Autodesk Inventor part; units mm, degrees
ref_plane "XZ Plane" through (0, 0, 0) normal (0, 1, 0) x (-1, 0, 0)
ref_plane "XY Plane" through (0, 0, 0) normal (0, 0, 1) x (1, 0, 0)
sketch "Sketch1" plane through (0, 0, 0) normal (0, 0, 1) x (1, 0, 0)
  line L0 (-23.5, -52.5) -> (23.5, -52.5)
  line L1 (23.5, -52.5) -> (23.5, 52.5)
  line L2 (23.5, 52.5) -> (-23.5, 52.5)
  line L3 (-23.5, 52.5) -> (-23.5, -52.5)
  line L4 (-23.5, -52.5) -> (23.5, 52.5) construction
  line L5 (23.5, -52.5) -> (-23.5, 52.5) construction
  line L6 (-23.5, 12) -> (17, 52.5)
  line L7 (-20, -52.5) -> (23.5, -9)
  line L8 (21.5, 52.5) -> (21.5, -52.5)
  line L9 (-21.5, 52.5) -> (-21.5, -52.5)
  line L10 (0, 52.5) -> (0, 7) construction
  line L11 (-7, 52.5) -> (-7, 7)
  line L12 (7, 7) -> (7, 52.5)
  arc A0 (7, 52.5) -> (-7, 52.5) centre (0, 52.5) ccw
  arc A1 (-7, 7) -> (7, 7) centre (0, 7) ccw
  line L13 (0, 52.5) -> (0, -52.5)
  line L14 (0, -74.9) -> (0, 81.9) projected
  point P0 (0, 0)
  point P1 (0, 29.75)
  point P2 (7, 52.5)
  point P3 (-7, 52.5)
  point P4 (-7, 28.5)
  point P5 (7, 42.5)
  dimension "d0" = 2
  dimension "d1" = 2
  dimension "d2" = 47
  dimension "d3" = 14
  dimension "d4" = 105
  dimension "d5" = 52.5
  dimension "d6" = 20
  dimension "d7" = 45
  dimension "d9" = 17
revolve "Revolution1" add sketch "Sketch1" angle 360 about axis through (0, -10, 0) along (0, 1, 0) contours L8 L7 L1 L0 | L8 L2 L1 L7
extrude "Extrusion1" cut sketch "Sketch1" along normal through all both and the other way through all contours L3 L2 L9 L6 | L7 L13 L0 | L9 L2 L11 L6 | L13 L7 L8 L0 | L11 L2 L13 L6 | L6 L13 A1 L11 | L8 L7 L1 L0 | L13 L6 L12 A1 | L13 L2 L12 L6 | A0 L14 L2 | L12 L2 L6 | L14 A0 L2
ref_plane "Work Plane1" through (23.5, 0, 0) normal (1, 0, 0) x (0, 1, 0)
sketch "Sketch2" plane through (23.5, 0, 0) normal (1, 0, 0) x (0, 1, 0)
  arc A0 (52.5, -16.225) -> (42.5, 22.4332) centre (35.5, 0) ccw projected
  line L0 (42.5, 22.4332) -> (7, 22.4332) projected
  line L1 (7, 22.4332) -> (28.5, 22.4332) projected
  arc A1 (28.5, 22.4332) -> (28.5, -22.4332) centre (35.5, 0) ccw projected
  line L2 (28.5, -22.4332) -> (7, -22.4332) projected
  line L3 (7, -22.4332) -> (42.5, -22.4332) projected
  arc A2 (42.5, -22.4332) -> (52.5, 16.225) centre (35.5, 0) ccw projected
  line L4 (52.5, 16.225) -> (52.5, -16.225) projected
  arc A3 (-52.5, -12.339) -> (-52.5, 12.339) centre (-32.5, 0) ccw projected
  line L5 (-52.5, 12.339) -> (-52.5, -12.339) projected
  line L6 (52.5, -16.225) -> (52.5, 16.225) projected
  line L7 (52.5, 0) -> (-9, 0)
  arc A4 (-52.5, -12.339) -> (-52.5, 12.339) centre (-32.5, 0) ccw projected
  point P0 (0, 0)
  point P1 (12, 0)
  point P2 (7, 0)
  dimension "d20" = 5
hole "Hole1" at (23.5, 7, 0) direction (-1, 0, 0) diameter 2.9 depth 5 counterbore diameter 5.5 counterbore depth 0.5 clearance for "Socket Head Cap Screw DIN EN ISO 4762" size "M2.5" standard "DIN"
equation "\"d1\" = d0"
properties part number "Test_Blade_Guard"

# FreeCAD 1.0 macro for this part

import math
import FreeCAD as App
import Part
import Sketcher
from FreeCAD import Vector
Q = App.Units.Quantity

doc = App.newDocument("Part")
body = doc.addObject("PartDesign::Body", "Body")

# Sketch on XY plane
sketch1 = body.newObject("Sketcher::SketchObject", "Sketch")
sketch1.AttachmentSupport = (doc.getObject("XY_Plane"), [""])
sketch1.MapMode = "FlatFace"
sketch1.addGeometry(Part.LineSegment(Vector(21.5, -52.5, 0), Vector(23.5, -52.5, 0)), False)
sketch1.addGeometry(Part.LineSegment(Vector(23.5, -52.5, 0), Vector(23.5, 52.5, 0)), False)
sketch1.addGeometry(Part.LineSegment(Vector(23.5, 52.5, 0), Vector(21.5, 52.5, 0)), False)
sketch1.addGeometry(Part.LineSegment(Vector(21.5, 52.5, 0), Vector(21.5, -52.5, 0)), False)
sketch1.addConstraint(Sketcher.Constraint("Coincident", 0, 2, 1, 1))
sketch1.addConstraint(Sketcher.Constraint("Coincident", 1, 2, 2, 1))
sketch1.addConstraint(Sketcher.Constraint("Coincident", 2, 2, 3, 1))
sketch1.addConstraint(Sketcher.Constraint("Coincident", 3, 2, 0, 1))
sketch1.addConstraint(Sketcher.Constraint("Horizontal", 0))
sketch1.addConstraint(Sketcher.Constraint("Vertical", 1))
sketch1.addConstraint(Sketcher.Constraint("Horizontal", 2))
sketch1.addConstraint(Sketcher.Constraint("Vertical", 3))
sketch1.addConstraint(Sketcher.Constraint("DistanceX", 0, 1, 0, 2, Q("2 mm")))
sketch1.addConstraint(Sketcher.Constraint("DistanceY", 1, 1, 1, 2, Q("105 mm")))
sketch1.addConstraint(Sketcher.Constraint("DistanceY", 0, 2, -1, 1, Q("52.5 mm")))
sketch1.addConstraint(Sketcher.Constraint("DistanceX", -1, 1, 0, 2, Q("23.5 mm")))
revolution = body.newObject("PartDesign::Revolution", "Revolution")
revolution.Profile = sketch1
revolution.ReferenceAxis = (sketch1, ["V_Axis"])
revolution.Angle = 360

# Sketch on XY plane
sketch2 = body.newObject("Sketcher::SketchObject", "Sketch001")
sketch2.AttachmentSupport = (doc.getObject("XY_Plane"), [""])
sketch2.MapMode = "FlatFace"
sketch2.addGeometry(Part.LineSegment(Vector(-23.5, 52.5, 0), Vector(-23.5, 12, 0)), False)
sketch2.addGeometry(Part.LineSegment(Vector(-23.5, 12, 0), Vector(-7, 28.5, 0)), False)
sketch2.addGeometry(Part.LineSegment(Vector(-7, 28.5, 0), Vector(-7, 7, 0)), False)
sketch2.addGeometry(Part.ArcOfCircle(Part.Circle(Vector(0, 7, 0), Vector(0, 0, 1), 7), math.radians(180), math.radians(360)), False)
sketch2.addGeometry(Part.LineSegment(Vector(7, 7, 0), Vector(7, 42.5, 0)), False)
sketch2.addGeometry(Part.LineSegment(Vector(7, 42.5, 0), Vector(17, 52.5, 0)), False)
sketch2.addGeometry(Part.LineSegment(Vector(17, 52.5, 0), Vector(7, 52.5, 0)), False)
sketch2.addGeometry(Part.ArcOfCircle(Part.Circle(Vector(0, 52.5, 0), Vector(0, 0, 1), 7), math.radians(0), math.radians(180)), False)
sketch2.addGeometry(Part.LineSegment(Vector(-7, 52.5, 0), Vector(-23.5, 52.5, 0)), False)
sketch2.addGeometry(Part.LineSegment(Vector(-20, -52.5, 0), Vector(23.5, -52.5, 0)), False)
sketch2.addGeometry(Part.LineSegment(Vector(23.5, -52.5, 0), Vector(23.5, -9, 0)), False)
sketch2.addGeometry(Part.LineSegment(Vector(23.5, -9, 0), Vector(-20, -52.5, 0)), False)
sketch2.addConstraint(Sketcher.Constraint("Coincident", 0, 2, 1, 1))
sketch2.addConstraint(Sketcher.Constraint("Coincident", 1, 2, 2, 1))
sketch2.addConstraint(Sketcher.Constraint("Tangent", 2, 2, 3, 1))
sketch2.addConstraint(Sketcher.Constraint("Tangent", 3, 2, 4, 1))
sketch2.addConstraint(Sketcher.Constraint("Coincident", 4, 2, 5, 1))
sketch2.addConstraint(Sketcher.Constraint("Coincident", 5, 2, 6, 1))
sketch2.addConstraint(Sketcher.Constraint("Coincident", 6, 2, 7, 1))
sketch2.addConstraint(Sketcher.Constraint("Coincident", 7, 2, 8, 1))
sketch2.addConstraint(Sketcher.Constraint("Coincident", 8, 2, 0, 1))
sketch2.addConstraint(Sketcher.Constraint("Coincident", 9, 2, 10, 1))
sketch2.addConstraint(Sketcher.Constraint("Coincident", 10, 2, 11, 1))
sketch2.addConstraint(Sketcher.Constraint("Coincident", 11, 2, 9, 1))
sketch2.addConstraint(Sketcher.Constraint("Vertical", 0))
sketch2.addConstraint(Sketcher.Constraint("Vertical", 2))
sketch2.addConstraint(Sketcher.Constraint("Vertical", 4))
sketch2.addConstraint(Sketcher.Constraint("Horizontal", 6))
sketch2.addConstraint(Sketcher.Constraint("Horizontal", 8))
sketch2.addConstraint(Sketcher.Constraint("Horizontal", 9))
sketch2.addConstraint(Sketcher.Constraint("Vertical", 10))
sketch2.addConstraint(Sketcher.Constraint("Equal", 3, 7))
sketch2.addConstraint(Sketcher.Constraint("Symmetric", 8, 2, 9, 2, -1, 1))
sketch2.addConstraint(Sketcher.Constraint("Symmetric", 6, 2, 7, 2, -2))
sketch2.addConstraint(Sketcher.Constraint("PointOnObject", 3, 3, -2))
sketch2.addConstraint(Sketcher.Constraint("Parallel", 1, 5))
sketch2.addConstraint(Sketcher.Constraint("Parallel", 5, 11))
sketch2.addConstraint(Sketcher.Constraint("Horizontal", 7, 3, 5, 2))
sketch2.addConstraint(Sketcher.Constraint("Equal", 9, 10))
sketch2.addConstraint(Sketcher.Constraint("Radius", 3, Q("7 mm")))
sketch2.addConstraint(Sketcher.Constraint("DistanceX", -1, 1, 5, 2, Q("17 mm")))
sketch2.addConstraint(Sketcher.Constraint("DistanceX", 11, 2, -1, 1, Q("20 mm")))
sketch2.addConstraint(Sketcher.Constraint("DistanceY", 1, 2, 4, 2, Q("14 mm")))
sketch2.addConstraint(Sketcher.Constraint("DistanceX", 0, 2, 9, 2, Q("47 mm")))
sketch2.addConstraint(Sketcher.Constraint("DistanceY", -1, 1, 7, 3, Q("52.5 mm")))
sketch2.addConstraint(Sketcher.Constraint("DistanceY", 2, 2, 2, 1, Q("21.5 mm")))
pocket1 = body.newObject("PartDesign::Pocket", "Pocket")
pocket1.Profile = sketch2
pocket1.Type = "ThroughAll"
pocket1.Midplane = True

# Sketch on YZ plane
sketch3 = body.newObject("Sketcher::SketchObject", "Sketch002")
sketch3.AttachmentSupport = (doc.getObject("YZ_Plane"), [""])
sketch3.MapMode = "FlatFace"
sketch3.AttachmentOffset = App.Placement(Vector(0, 0, 23.5), App.Rotation())
sketch3.addGeometry(Part.Circle(Vector(7, 0, 0), Vector(0, 0, 1), 1.45), False)
sketch3.addConstraint(Sketcher.Constraint("PointOnObject", 0, 3, -1))
sketch3.addConstraint(Sketcher.Constraint("Diameter", 0, Q("2.9 mm")))
sketch3.addConstraint(Sketcher.Constraint("DistanceX", -1, 1, 0, 3, Q("7 mm")))
doc.recompute()
hole = body.newObject("PartDesign::Hole", "Hole")
hole.Profile = sketch3
hole.ThreadType = "None"
hole.Diameter = 2.9
hole.DepthType = "Dimension"
hole.Depth = 5
hole.DrillPoint = "Flat"
hole.HoleCutType = "Counterbore"
hole.HoleCutDiameter = 5.5
hole.HoleCutDepth = 0.5

doc.recompute()
